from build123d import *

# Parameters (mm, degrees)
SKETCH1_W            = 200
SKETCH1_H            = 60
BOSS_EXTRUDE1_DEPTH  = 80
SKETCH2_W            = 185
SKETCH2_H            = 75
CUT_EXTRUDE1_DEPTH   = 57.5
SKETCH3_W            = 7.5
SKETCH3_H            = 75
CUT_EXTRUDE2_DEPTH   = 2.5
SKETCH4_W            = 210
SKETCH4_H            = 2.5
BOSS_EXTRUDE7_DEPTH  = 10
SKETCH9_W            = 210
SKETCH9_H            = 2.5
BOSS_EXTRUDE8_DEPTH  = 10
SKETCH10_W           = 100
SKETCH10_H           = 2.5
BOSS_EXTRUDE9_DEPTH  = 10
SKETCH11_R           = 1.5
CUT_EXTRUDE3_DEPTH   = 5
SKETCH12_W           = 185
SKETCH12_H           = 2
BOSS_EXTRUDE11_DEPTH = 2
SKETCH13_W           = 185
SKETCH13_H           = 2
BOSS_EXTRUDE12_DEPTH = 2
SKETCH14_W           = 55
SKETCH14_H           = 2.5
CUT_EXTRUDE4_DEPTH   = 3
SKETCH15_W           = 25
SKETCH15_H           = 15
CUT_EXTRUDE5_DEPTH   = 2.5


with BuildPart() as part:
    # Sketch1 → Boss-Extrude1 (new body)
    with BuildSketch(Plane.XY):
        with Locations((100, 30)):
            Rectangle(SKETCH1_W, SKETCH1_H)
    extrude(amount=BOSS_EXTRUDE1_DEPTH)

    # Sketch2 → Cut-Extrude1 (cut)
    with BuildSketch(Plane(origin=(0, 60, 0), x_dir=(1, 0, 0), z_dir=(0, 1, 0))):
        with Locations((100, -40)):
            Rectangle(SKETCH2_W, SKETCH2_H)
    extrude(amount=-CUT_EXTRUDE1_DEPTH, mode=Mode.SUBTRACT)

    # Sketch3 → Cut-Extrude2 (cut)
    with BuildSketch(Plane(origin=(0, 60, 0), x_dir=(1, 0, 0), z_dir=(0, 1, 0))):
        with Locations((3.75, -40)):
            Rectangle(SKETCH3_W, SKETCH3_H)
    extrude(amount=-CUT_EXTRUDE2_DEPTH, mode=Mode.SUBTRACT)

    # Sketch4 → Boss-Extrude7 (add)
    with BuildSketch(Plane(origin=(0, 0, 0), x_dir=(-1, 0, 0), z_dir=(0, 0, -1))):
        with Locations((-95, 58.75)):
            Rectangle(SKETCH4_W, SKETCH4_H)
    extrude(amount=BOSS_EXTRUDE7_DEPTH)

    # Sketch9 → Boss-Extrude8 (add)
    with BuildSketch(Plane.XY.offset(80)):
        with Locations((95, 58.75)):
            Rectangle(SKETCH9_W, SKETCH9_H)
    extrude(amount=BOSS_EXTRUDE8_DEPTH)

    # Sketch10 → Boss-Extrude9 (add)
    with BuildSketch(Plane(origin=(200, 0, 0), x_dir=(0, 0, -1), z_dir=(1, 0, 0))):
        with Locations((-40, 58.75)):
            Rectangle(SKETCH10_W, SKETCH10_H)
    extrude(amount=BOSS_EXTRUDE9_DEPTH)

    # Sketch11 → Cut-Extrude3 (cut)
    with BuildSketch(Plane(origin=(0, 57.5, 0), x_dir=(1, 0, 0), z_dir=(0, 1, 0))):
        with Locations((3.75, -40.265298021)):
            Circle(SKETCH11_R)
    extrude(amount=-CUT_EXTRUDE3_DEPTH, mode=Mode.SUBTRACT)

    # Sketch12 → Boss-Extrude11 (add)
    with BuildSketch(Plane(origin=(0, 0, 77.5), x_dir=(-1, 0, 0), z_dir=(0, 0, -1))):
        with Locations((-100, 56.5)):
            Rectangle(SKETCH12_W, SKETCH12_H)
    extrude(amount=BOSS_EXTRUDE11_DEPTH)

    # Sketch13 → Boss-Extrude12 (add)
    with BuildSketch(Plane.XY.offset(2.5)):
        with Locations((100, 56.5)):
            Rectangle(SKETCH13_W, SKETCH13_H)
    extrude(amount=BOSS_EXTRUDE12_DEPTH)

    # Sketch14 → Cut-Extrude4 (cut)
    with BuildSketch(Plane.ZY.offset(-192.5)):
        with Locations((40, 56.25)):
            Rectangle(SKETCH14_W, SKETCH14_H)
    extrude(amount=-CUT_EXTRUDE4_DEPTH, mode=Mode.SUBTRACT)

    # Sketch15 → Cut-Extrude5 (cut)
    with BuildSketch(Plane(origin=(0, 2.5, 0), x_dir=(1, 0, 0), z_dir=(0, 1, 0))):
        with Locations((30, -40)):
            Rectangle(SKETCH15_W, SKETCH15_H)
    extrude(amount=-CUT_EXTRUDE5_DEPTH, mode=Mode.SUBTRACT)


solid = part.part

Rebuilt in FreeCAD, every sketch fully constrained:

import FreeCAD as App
import Part
import Sketcher
from FreeCAD import Vector
Q = App.Units.Quantity

doc = App.newDocument("Part")
body = doc.addObject("PartDesign::Body", "Body")

sketch1 = body.newObject("Sketcher::SketchObject", "Sketch")
sketch1.AttachmentSupport = (doc.getObject("XY_Plane"), [""])
sketch1.MapMode = "FlatFace"
sketch1.addGeometry([
    Part.LineSegment(Vector(0, 60, 0), Vector(0, 0, 0)),
    Part.LineSegment(Vector(0, 0, 0), Vector(200, 0, 0)),
    Part.LineSegment(Vector(200, 0, 0), Vector(200, 60, 0)),
    Part.LineSegment(Vector(200, 60, 0), Vector(0, 60, 0)),
], False)
sketch1.addConstraint([
    Sketcher.Constraint("Coincident", 0, 2, 1, 1),
    Sketcher.Constraint("Coincident", 1, 2, 2, 1),
    Sketcher.Constraint("Coincident", 2, 2, 3, 1),
    Sketcher.Constraint("Coincident", 3, 2, 0, 1),
    Sketcher.Constraint("Vertical", 0),
    Sketcher.Constraint("Horizontal", 1),
    Sketcher.Constraint("Vertical", 2),
    Sketcher.Constraint("Horizontal", 3),
    Sketcher.Constraint("Coincident", 0, 2, -1, 1),
    Sketcher.Constraint("DistanceX", 1, 1, 1, 2, Q("200 mm")),
    Sketcher.Constraint("DistanceY", 0, 2, 0, 1, Q("60 mm")),
])
pad1 = body.newObject("PartDesign::Pad", "Pad")
pad1.Profile = sketch1
pad1.Length = 80

sketch2 = body.newObject("Sketcher::SketchObject", "Sketch001")
sketch2.AttachmentSupport = (doc.getObject("XZ_Plane"), [""])
sketch2.MapMode = "FlatFace"
sketch2.AttachmentOffset = App.Placement(Vector(0, 0, -60), App.Rotation())
sketch2.addGeometry([
    Part.LineSegment(Vector(8, 2, 0), Vector(8, 78, 0)),
    Part.LineSegment(Vector(8, 78, 0), Vector(192, 78, 0)),
    Part.LineSegment(Vector(192, 78, 0), Vector(192, 2, 0)),
    Part.LineSegment(Vector(192, 2, 0), Vector(8, 2, 0)),
], False)
sketch2.addConstraint([
    Sketcher.Constraint("Coincident", 0, 2, 1, 1),
    Sketcher.Constraint("Coincident", 1, 2, 2, 1),
    Sketcher.Constraint("Coincident", 2, 2, 3, 1),
    Sketcher.Constraint("Coincident", 3, 2, 0, 1),
    Sketcher.Constraint("Vertical", 0),
    Sketcher.Constraint("Horizontal", 1),
    Sketcher.Constraint("Vertical", 2),
    Sketcher.Constraint("Horizontal", 3),
    Sketcher.Constraint("DistanceX", 1, 1, 1, 2, Q("185 mm")),
    Sketcher.Constraint("DistanceY", 0, 1, 0, 2, Q("75 mm")),
    Sketcher.Constraint("DistanceX", -1, 1, 0, 2, Q("7.5 mm")),
    Sketcher.Constraint("DistanceY", -1, 1, 0, 2, Q("77.5 mm")),
])
pocket1 = body.newObject("PartDesign::Pocket", "Pocket")
pocket1.Profile = sketch2
pocket1.Length = 57.5
pocket1.Reversed = True

sketch3 = body.newObject("Sketcher::SketchObject", "Sketch002")
sketch3.AttachmentSupport = (doc.getObject("XZ_Plane"), [""])
sketch3.MapMode = "FlatFace"
sketch3.AttachmentOffset = App.Placement(Vector(0, 0, -60), App.Rotation())
sketch3.addGeometry([
    Part.LineSegment(Vector(0, 2, 0), Vector(0, 78, 0)),
    Part.LineSegment(Vector(0, 78, 0), Vector(8, 78, 0)),
    Part.LineSegment(Vector(8, 78, 0), Vector(8, 2, 0)),
    Part.LineSegment(Vector(8, 2, 0), Vector(0, 2, 0)),
], False)
sketch3.addConstraint([
    Sketcher.Constraint("Coincident", 0, 2, 1, 1),
    Sketcher.Constraint("Coincident", 1, 2, 2, 1),
    Sketcher.Constraint("Coincident", 2, 2, 3, 1),
    Sketcher.Constraint("Coincident", 3, 2, 0, 1),
    Sketcher.Constraint("Vertical", 0),
    Sketcher.Constraint("Horizontal", 1),
    Sketcher.Constraint("Vertical", 2),
    Sketcher.Constraint("Horizontal", 3),
    Sketcher.Constraint("PointOnObject", 0, 2, -2),
    Sketcher.Constraint("DistanceY", 0, 1, 0, 2, Q("75 mm")),
    Sketcher.Constraint("DistanceX", 1, 1, 1, 2, Q("7.5 mm")),
    Sketcher.Constraint("DistanceY", -1, 1, 0, 2, Q("77.5 mm")),
])
pocket2 = body.newObject("PartDesign::Pocket", "Pocket001")
pocket2.Profile = sketch3
pocket2.Length = 2.5
pocket2.Reversed = True

sketch4 = body.newObject("Sketcher::SketchObject", "Sketch003")
sketch4.AttachmentSupport = (doc.getObject("XY_Plane"), [""])
sketch4.MapMode = "FlatFace"
sketch4.addGeometry([
    Part.LineSegment(Vector(200, 60, 0), Vector(200, 57.5, 0)),
    Part.LineSegment(Vector(200, 57.5, 0), Vector(-10, 57.5, 0)),
    Part.LineSegment(Vector(-10, 57.5, 0), Vector(-10, 60, 0)),
    Part.LineSegment(Vector(-10, 60, 0), Vector(200, 60, 0)),
], False)
sketch4.addConstraint([
    Sketcher.Constraint("Coincident", 0, 2, 1, 1),
    Sketcher.Constraint("Coincident", 1, 2, 2, 1),
    Sketcher.Constraint("Coincident", 2, 2, 3, 1),
    Sketcher.Constraint("Coincident", 3, 2, 0, 1),
    Sketcher.Constraint("Vertical", 0),
    Sketcher.Constraint("Horizontal", 1),
    Sketcher.Constraint("Vertical", 2),
    Sketcher.Constraint("Horizontal", 3),
    Sketcher.Constraint("DistanceX", 1, 2, 1, 1, Q("210 mm")),
    Sketcher.Constraint("DistanceY", 0, 2, 0, 1, Q("2.5 mm")),
    Sketcher.Constraint("DistanceX", -1, 1, 0, 2, Q("200 mm")),
    Sketcher.Constraint("DistanceY", -1, 1, 2, 2, Q("60 mm")),
])
pad2 = body.newObject("PartDesign::Pad", "Pad001")
pad2.Profile = sketch4
pad2.Length = 10
pad2.Reversed = True

sketch5 = body.newObject("Sketcher::SketchObject", "Sketch004")
sketch5.AttachmentSupport = (doc.getObject("XY_Plane"), [""])
sketch5.MapMode = "FlatFace"
sketch5.AttachmentOffset = App.Placement(Vector(0, 0, 80), App.Rotation())
sketch5.addGeometry([
    Part.LineSegment(Vector(-10, 60, 0), Vector(-10, 57.5, 0)),
    Part.LineSegment(Vector(-10, 57.5, 0), Vector(200, 57.5, 0)),
    Part.LineSegment(Vector(200, 57.5, 0), Vector(200, 60, 0)),
    Part.LineSegment(Vector(200, 60, 0), Vector(-10, 60, 0)),
], False)
sketch5.addConstraint([
    Sketcher.Constraint("Coincident", 0, 2, 1, 1),
    Sketcher.Constraint("Coincident", 1, 2, 2, 1),
    Sketcher.Constraint("Coincident", 2, 2, 3, 1),
    Sketcher.Constraint("Coincident", 3, 2, 0, 1),
    Sketcher.Constraint("Vertical", 0),
    Sketcher.Constraint("Horizontal", 1),
    Sketcher.Constraint("Vertical", 2),
    Sketcher.Constraint("Horizontal", 3),
    Sketcher.Constraint("DistanceX", 1, 1, 1, 2, Q("210 mm")),
    Sketcher.Constraint("DistanceY", 0, 2, 0, 1, Q("2.5 mm")),
    Sketcher.Constraint("DistanceX", 0, 2, -1, 1, Q("10 mm")),
    Sketcher.Constraint("DistanceY", -1, 1, 2, 2, Q("60 mm")),
])
pad3 = body.newObject("PartDesign::Pad", "Pad002")
pad3.Profile = sketch5
pad3.Length = 10

sketch6 = body.newObject("Sketcher::SketchObject", "Sketch005")
sketch6.AttachmentSupport = (doc.getObject("YZ_Plane"), [""])
sketch6.MapMode = "FlatFace"
sketch6.AttachmentOffset = App.Placement(Vector(0, 0, 200), App.Rotation())
sketch6.addGeometry([
    Part.LineSegment(Vector(60, 90, 0), Vector(57.5, 90, 0)),
    Part.LineSegment(Vector(57.5, 90, 0), Vector(57.5, -10, 0)),
    Part.LineSegment(Vector(57.5, -10, 0), Vector(60, -10, 0)),
    Part.LineSegment(Vector(60, -10, 0), Vector(60, 90, 0)),
], False)
sketch6.addConstraint([
    Sketcher.Constraint("Coincident", 0, 2, 1, 1),
    Sketcher.Constraint("Coincident", 1, 2, 2, 1),
    Sketcher.Constraint("Coincident", 2, 2, 3, 1),
    Sketcher.Constraint("Coincident", 3, 2, 0, 1),
    Sketcher.Constraint("Horizontal", 0),
    Sketcher.Constraint("Vertical", 1),
    Sketcher.Constraint("Horizontal", 2),
    Sketcher.Constraint("Vertical", 3),
    Sketcher.Constraint("DistanceY", 1, 2, 1, 1, Q("100 mm")),
    Sketcher.Constraint("DistanceX", 0, 2, 0, 1, Q("2.5 mm")),
    Sketcher.Constraint("DistanceY", -1, 1, 0, 2, Q("90 mm")),
    Sketcher.Constraint("DistanceX", -1, 1, 2, 2, Q("60 mm")),
])
pad4 = body.newObject("PartDesign::Pad", "Pad003")
pad4.Profile = sketch6
pad4.Length = 10

sketch7 = body.newObject("Sketcher::SketchObject", "Sketch006")
sketch7.AttachmentSupport = (doc.getObject("XZ_Plane"), [""])
sketch7.MapMode = "FlatFace"
sketch7.AttachmentOffset = App.Placement(Vector(0, 0, -57.5), App.Rotation())
sketch7.addGeometry(Part.Circle(Vector(3.8, 40.3, 0), Vector(0, 0, 1), 1.5), False)
sketch7.addConstraint([
    Sketcher.Constraint("Diameter", 0, Q("3 mm")),
    Sketcher.Constraint("DistanceX", -1, 1, 0, 3, Q("3.75 mm")),
    Sketcher.Constraint("DistanceY", -1, 1, 0, 3, Q("40.265298 mm")),
])
pocket3 = body.newObject("PartDesign::Pocket", "Pocket002")
pocket3.Profile = sketch7
pocket3.Length = 5
pocket3.Reversed = True

sketch8 = body.newObject("Sketcher::SketchObject", "Sketch007")
sketch8.AttachmentSupport = (doc.getObject("XY_Plane"), [""])
sketch8.MapMode = "FlatFace"
sketch8.AttachmentOffset = App.Placement(Vector(0, 0, 77.5), App.Rotation())
sketch8.addGeometry([
    Part.LineSegment(Vector(192.5, 57.5, 0), Vector(192.5, 55.5, 0)),
    Part.LineSegment(Vector(192.5, 55.5, 0), Vector(7.5, 55.5, 0)),
    Part.LineSegment(Vector(7.5, 55.5, 0), Vector(7.5, 57.5, 0)),
    Part.LineSegment(Vector(7.5, 57.5, 0), Vector(192.5, 57.5, 0)),
], False)
sketch8.addConstraint([
    Sketcher.Constraint("Coincident", 0, 2, 1, 1),
    Sketcher.Constraint("Coincident", 1, 2, 2, 1),
    Sketcher.Constraint("Coincident", 2, 2, 3, 1),
    Sketcher.Constraint("Coincident", 3, 2, 0, 1),
    Sketcher.Constraint("Vertical", 0),
    Sketcher.Constraint("Horizontal", 1),
    Sketcher.Constraint("Vertical", 2),
    Sketcher.Constraint("Horizontal", 3),
    Sketcher.Constraint("DistanceX", 1, 2, 1, 1, Q("185 mm")),
    Sketcher.Constraint("DistanceY", 0, 2, 0, 1, Q("2 mm")),
    Sketcher.Constraint("DistanceX", -1, 1, 0, 2, Q("192.5 mm")),
    Sketcher.Constraint("DistanceY", -1, 1, 0, 2, Q("55.5 mm")),
])
pad5 = body.newObject("PartDesign::Pad", "Pad004")
pad5.Profile = sketch8
pad5.Length = 2
pad5.Reversed = True

sketch9 = body.newObject("Sketcher::SketchObject", "Sketch008")
sketch9.AttachmentSupport = (doc.getObject("XY_Plane"), [""])
sketch9.MapMode = "FlatFace"
sketch9.AttachmentOffset = App.Placement(Vector(0, 0, 2.5), App.Rotation())
sketch9.addGeometry([
    Part.LineSegment(Vector(7.5, 57.5, 0), Vector(7.5, 55.5, 0)),
    Part.LineSegment(Vector(7.5, 55.5, 0), Vector(192.5, 55.5, 0)),
    Part.LineSegment(Vector(192.5, 55.5, 0), Vector(192.5, 57.5, 0)),
    Part.LineSegment(Vector(192.5, 57.5, 0), Vector(7.5, 57.5, 0)),
], False)
sketch9.addConstraint([
    Sketcher.Constraint("Coincident", 0, 2, 1, 1),
    Sketcher.Constraint("Coincident", 1, 2, 2, 1),
    Sketcher.Constraint("Coincident", 2, 2, 3, 1),
    Sketcher.Constraint("Coincident", 3, 2, 0, 1),
    Sketcher.Constraint("Vertical", 0),
    Sketcher.Constraint("Horizontal", 1),
    Sketcher.Constraint("Vertical", 2),
    Sketcher.Constraint("Horizontal", 3),
    Sketcher.Constraint("DistanceX", 1, 1, 1, 2, Q("185 mm")),
    Sketcher.Constraint("DistanceY", 0, 2, 0, 1, Q("2 mm")),
    Sketcher.Constraint("DistanceX", -1, 1, 0, 2, Q("7.5 mm")),
    Sketcher.Constraint("DistanceY", -1, 1, 0, 2, Q("55.5 mm")),
])
pad6 = body.newObject("PartDesign::Pad", "Pad005")
pad6.Profile = sketch9
pad6.Length = 2

sketch10 = body.newObject("Sketcher::SketchObject", "Sketch009")
sketch10.AttachmentSupport = (doc.getObject("YZ_Plane"), [""])
sketch10.MapMode = "FlatFace"
sketch10.AttachmentOffset = App.Placement(Vector(0, 0, 192.5), App.Rotation())
sketch10.addGeometry([
    Part.LineSegment(Vector(57.5, 12.5, 0), Vector(55, 12.5, 0)),
    Part.LineSegment(Vector(55, 12.5, 0), Vector(55, 67.5, 0)),
    Part.LineSegment(Vector(55, 67.5, 0), Vector(57.5, 67.5, 0)),
    Part.LineSegment(Vector(57.5, 67.5, 0), Vector(57.5, 12.5, 0)),
], False)
sketch10.addConstraint([
    Sketcher.Constraint("Coincident", 0, 2, 1, 1),
    Sketcher.Constraint("Coincident", 1, 2, 2, 1),
    Sketcher.Constraint("Coincident", 2, 2, 3, 1),
    Sketcher.Constraint("Coincident", 3, 2, 0, 1),
    Sketcher.Constraint("Horizontal", 0),
    Sketcher.Constraint("Vertical", 1),
    Sketcher.Constraint("Horizontal", 2),
    Sketcher.Constraint("Vertical", 3),
    Sketcher.Constraint("DistanceY", 1, 1, 1, 2, Q("55 mm")),
    Sketcher.Constraint("DistanceX", 0, 2, 0, 1, Q("2.5 mm")),
    Sketcher.Constraint("DistanceX", -1, 1, 0, 2, Q("55 mm")),
    Sketcher.Constraint("DistanceY", -1, 1, 0, 2, Q("12.5 mm")),
])
pocket4 = body.newObject("PartDesign::Pocket", "Pocket003")
pocket4.Profile = sketch10
pocket4.Length = 3
pocket4.Reversed = True

sketch11 = body.newObject("Sketcher::SketchObject", "Sketch010")
sketch11.AttachmentSupport = (doc.getObject("XZ_Plane"), [""])
sketch11.MapMode = "FlatFace"
sketch11.AttachmentOffset = App.Placement(Vector(0, 0, -2.5), App.Rotation())
sketch11.addGeometry([
    Part.LineSegment(Vector(18, 32, 0), Vector(18, 48, 0)),
    Part.LineSegment(Vector(18, 48, 0), Vector(42, 48, 0)),
    Part.LineSegment(Vector(42, 48, 0), Vector(42, 32, 0)),
    Part.LineSegment(Vector(42, 32, 0), Vector(18, 32, 0)),
], False)
sketch11.addConstraint([
    Sketcher.Constraint("Coincident", 0, 2, 1, 1),
    Sketcher.Constraint("Coincident", 1, 2, 2, 1),
    Sketcher.Constraint("Coincident", 2, 2, 3, 1),
    Sketcher.Constraint("Coincident", 3, 2, 0, 1),
    Sketcher.Constraint("Vertical", 0),
    Sketcher.Constraint("Horizontal", 1),
    Sketcher.Constraint("Vertical", 2),
    Sketcher.Constraint("Horizontal", 3),
    Sketcher.Constraint("DistanceX", 1, 1, 1, 2, Q("25 mm")),
    Sketcher.Constraint("DistanceY", 0, 1, 0, 2, Q("15 mm")),
    Sketcher.Constraint("DistanceX", -1, 1, 0, 2, Q("17.5 mm")),
    Sketcher.Constraint("DistanceY", -1, 1, 0, 2, Q("47.5 mm")),
])
pocket5 = body.newObject("PartDesign::Pocket", "Pocket004")
pocket5.Profile = sketch11
pocket5.Length = 2.5
pocket5.Reversed = True

doc.recompute()
